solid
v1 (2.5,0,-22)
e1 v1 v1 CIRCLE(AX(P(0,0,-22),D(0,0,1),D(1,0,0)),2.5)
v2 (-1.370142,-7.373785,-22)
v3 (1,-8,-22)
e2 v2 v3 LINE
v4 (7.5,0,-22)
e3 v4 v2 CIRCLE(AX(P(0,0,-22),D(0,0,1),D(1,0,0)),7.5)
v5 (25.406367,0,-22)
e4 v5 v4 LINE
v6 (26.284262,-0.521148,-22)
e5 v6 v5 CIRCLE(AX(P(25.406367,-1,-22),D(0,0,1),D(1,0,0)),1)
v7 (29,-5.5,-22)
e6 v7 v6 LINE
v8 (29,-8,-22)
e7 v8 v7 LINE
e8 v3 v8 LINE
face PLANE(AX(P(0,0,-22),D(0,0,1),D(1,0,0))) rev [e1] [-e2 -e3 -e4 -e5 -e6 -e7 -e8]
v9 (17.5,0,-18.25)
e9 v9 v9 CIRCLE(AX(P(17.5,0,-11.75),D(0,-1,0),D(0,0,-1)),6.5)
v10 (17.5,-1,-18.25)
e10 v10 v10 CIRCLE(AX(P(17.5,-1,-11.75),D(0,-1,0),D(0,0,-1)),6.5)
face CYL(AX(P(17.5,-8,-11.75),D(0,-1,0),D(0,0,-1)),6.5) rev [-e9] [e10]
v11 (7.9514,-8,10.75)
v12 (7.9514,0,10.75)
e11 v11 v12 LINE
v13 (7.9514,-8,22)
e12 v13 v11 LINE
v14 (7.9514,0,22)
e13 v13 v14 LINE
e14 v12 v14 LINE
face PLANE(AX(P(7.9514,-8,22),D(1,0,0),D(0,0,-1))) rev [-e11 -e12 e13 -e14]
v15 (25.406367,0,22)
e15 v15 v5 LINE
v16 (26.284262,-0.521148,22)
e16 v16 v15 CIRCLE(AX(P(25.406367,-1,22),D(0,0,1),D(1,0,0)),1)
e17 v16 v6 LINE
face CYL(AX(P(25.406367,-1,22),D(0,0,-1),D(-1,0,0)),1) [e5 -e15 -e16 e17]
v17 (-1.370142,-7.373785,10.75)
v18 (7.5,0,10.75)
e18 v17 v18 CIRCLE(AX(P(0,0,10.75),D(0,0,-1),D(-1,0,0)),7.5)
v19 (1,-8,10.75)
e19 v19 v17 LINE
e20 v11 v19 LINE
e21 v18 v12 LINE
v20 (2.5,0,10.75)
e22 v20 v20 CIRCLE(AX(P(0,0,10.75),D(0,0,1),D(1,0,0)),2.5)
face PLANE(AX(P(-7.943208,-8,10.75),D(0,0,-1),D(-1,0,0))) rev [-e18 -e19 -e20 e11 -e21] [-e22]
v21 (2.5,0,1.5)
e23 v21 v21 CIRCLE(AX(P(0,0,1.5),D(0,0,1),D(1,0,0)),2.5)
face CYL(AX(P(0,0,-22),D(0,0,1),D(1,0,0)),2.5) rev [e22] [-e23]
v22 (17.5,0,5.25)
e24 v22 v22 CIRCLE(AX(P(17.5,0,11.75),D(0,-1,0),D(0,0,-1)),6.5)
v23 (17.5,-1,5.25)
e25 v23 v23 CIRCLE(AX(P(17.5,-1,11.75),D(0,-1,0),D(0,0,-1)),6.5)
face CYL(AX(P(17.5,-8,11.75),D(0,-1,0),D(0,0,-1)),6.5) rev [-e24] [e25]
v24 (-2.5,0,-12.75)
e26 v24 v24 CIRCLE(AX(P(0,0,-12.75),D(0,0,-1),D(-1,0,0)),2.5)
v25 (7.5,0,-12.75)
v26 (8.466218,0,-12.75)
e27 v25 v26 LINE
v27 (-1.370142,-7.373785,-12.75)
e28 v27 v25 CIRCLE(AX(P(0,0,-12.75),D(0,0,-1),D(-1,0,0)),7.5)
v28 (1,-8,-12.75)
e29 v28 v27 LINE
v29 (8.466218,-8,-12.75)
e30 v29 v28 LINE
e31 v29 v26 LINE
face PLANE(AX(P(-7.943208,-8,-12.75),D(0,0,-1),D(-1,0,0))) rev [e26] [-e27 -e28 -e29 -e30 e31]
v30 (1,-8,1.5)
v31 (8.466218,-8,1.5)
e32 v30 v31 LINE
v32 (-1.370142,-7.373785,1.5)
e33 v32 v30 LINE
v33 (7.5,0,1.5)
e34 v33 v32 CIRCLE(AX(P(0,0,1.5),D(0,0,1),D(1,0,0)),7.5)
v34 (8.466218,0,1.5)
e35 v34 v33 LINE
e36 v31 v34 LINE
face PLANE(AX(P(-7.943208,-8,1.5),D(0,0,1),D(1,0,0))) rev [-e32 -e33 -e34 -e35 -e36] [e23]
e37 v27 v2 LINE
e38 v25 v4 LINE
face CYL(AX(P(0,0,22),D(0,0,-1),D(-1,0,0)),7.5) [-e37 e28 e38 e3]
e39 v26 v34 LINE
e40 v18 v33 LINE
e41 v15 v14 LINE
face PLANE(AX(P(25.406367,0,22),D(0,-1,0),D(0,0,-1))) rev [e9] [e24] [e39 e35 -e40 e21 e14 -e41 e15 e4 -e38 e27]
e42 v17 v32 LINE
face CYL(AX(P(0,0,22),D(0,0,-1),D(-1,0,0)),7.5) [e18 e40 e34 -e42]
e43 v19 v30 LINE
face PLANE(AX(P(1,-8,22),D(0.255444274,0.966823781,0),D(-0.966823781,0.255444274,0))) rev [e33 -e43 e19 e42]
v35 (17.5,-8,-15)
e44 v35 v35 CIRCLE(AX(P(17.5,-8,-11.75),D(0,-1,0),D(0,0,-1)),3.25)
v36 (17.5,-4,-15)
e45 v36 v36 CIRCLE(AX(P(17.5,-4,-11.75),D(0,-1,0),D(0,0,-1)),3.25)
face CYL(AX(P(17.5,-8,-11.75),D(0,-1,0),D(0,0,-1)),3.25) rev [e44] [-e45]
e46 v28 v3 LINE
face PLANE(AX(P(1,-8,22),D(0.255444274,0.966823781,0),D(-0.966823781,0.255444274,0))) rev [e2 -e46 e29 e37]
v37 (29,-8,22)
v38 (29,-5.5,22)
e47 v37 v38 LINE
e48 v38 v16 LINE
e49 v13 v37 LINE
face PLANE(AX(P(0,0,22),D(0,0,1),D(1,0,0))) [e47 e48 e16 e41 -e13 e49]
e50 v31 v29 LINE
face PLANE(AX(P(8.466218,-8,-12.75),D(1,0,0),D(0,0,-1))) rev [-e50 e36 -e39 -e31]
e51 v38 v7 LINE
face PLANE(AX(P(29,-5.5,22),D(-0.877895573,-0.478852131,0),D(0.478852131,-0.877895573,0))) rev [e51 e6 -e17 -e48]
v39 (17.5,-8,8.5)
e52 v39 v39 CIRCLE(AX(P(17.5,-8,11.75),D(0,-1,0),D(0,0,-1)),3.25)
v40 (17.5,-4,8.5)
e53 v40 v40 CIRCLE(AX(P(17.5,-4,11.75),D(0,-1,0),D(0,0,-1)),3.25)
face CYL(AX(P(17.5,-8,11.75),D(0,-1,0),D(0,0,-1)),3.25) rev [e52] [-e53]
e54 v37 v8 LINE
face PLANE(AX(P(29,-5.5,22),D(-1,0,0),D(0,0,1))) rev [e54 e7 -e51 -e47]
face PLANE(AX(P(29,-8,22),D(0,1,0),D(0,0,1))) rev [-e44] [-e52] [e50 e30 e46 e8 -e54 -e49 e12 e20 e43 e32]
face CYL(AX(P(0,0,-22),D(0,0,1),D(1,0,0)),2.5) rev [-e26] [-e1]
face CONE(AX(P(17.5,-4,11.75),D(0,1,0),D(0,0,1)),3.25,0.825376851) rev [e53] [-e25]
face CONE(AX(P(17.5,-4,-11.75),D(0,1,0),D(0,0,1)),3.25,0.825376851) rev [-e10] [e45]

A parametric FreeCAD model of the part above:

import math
import FreeCAD as App
import Part
import Sketcher
from FreeCAD import Vector

doc = App.newDocument("Part")
body = doc.addObject("PartDesign::Body", "Body")

# Sketch on XY plane
sketch1 = doc.addObject("Sketcher::SketchObject", "Sketch")
body.addObject(sketch1)
sketch1.AttachmentSupport = (doc.XY_Plane, [""])
sketch1.MapMode = "FlatFace"
sketch1.addGeometry([
    Part.LineSegment(Vector(29, -8, 0), Vector(29, -5.5, 0)),  # 0
    Part.LineSegment(Vector(29, -5.5, 0), Vector(26.3, -0.5, 0)),  # 1
    Part.ArcOfCircle(Part.Circle(Vector(25.4, -1, 0), Vector(0, 0, 1), 1), math.radians(29), math.radians(90)),  # 2
    Part.LineSegment(Vector(25.4, 0, 0), Vector(7.5, 0, 0)),  # 3
    Part.ArcOfCircle(Part.Circle(Vector(0, 0, 0), Vector(0, 0, 1), 7.5), math.radians(0), math.radians(259)),  # 4
    Part.LineSegment(Vector(-1.4, -7.4, 0), Vector(1, -8, 0)),  # 5
    Part.LineSegment(Vector(1, -8, 0), Vector(29, -8, 0)),  # 6
], False)
sketch1.addConstraint([
    Sketcher.Constraint("Coincident", 0, 2, 1, 1),
    Sketcher.Constraint("Tangent", 1, 2, 2, 1),
    Sketcher.Constraint("Tangent", 2, 2, 3, 1),
    Sketcher.Constraint("Coincident", 3, 2, 4, 1),
    Sketcher.Constraint("Coincident", 4, 2, 5, 1),
    Sketcher.Constraint("Coincident", 5, 2, 6, 1),
    Sketcher.Constraint("Coincident", 6, 2, 0, 1),
    Sketcher.Constraint("Vertical", 0),
    Sketcher.Constraint("Horizontal", 3),
    Sketcher.Constraint("Horizontal", 6),
    Sketcher.Constraint("Coincident", 4, 3, -1, 1),
    Sketcher.Constraint("PointOnObject", 2, 2, -1),
    Sketcher.Constraint("Radius", 2, 1.0),
    Sketcher.Constraint("Radius", 4, 7.5),
    Sketcher.Constraint("DistanceX", 6, 1, 6, 2, 28.0),
    Sketcher.Constraint("DistanceY", 0, 1, 0, 2, 2.5),
    Sketcher.Constraint("DistanceX", -1, 1, 0, 2, 29.0),
    Sketcher.Constraint("DistanceY", 5, 2, -1, 1, 8.0),
    Sketcher.Constraint("Distance", 1, 5.671349),
    Sketcher.Constraint("DistanceX", 4, 2, -1, 1, 1.370142),
])
pad1 = doc.addObject("PartDesign::Pad", "Pad")
body.addObject(pad1)
pad1.Profile = sketch1
pad1.Length = 44
pad1.Midplane = True

# Sketch on XY plane
sketch2 = doc.addObject("Sketcher::SketchObject", "Sketch001")
body.addObject(sketch2)
sketch2.AttachmentSupport = (doc.XY_Plane, [""])
sketch2.MapMode = "FlatFace"
sketch2.AttachmentOffset = App.Placement(Vector(0, 0, 11.75), App.Rotation())
sketch2.addGeometry([
    Part.LineSegment(Vector(24, 0, 0), Vector(17.5, 0, 0)),  # 0
    Part.LineSegment(Vector(17.5, 0, 0), Vector(17.5, -8, 0)),  # 1
    Part.LineSegment(Vector(17.5, -8, 0), Vector(20.8, -8, 0)),  # 2
    Part.LineSegment(Vector(20.8, -8, 0), Vector(20.8, -4, 0)),  # 3
    Part.LineSegment(Vector(20.8, -4, 0), Vector(24, -1, 0)),  # 4
    Part.LineSegment(Vector(24, -1, 0), Vector(24, 0, 0)),  # 5
], False)
sketch2.addGeometry(Part.LineSegment(Vector(17.5, -8, 0), Vector(17.5, 0, 0)), True)  # axis
sketch2.addConstraint([
    Sketcher.Constraint("Coincident", 0, 2, 1, 1),
    Sketcher.Constraint("Coincident", 1, 2, 2, 1),
    Sketcher.Constraint("Coincident", 2, 2, 3, 1),
    Sketcher.Constraint("Coincident", 3, 2, 4, 1),
    Sketcher.Constraint("Coincident", 4, 2, 5, 1),
    Sketcher.Constraint("Coincident", 5, 2, 0, 1),
    Sketcher.Constraint("Horizontal", 0),
    Sketcher.Constraint("Vertical", 1),
    Sketcher.Constraint("Horizontal", 2),
    Sketcher.Constraint("Vertical", 3),
    Sketcher.Constraint("Vertical", 5),
    Sketcher.Constraint("Vertical", 6),
    Sketcher.Constraint("Coincident", 6, 1, 1, 2),
    Sketcher.Constraint("PointOnObject", 0, 2, -1),
    Sketcher.Constraint("PointOnObject", 6, 2, -1),
    Sketcher.Constraint("DistanceY", 1, 2, 1, 1, 8.0),
    Sketcher.Constraint("DistanceY", 3, 1, 3, 2, 4.0),
    Sketcher.Constraint("DistanceY", 5, 1, 5, 2, 1.0),
    Sketcher.Constraint("DistanceX", 0, 2, 0, 1, 6.5),
    Sketcher.Constraint("DistanceX", -1, 1, 4, 2, 24.0),
    Sketcher.Constraint("DistanceX", 2, 1, 2, 2, 3.25),
])
groove = doc.addObject("PartDesign::Groove", "Groove")
body.addObject(groove)
groove.Profile = sketch2
groove.ReferenceAxis = (sketch2, ["Axis0"])
groove.Angle = 360
doc.recompute()

linearpattern = doc.addObject("PartDesign::LinearPattern", "LinearPattern")
body.addObject(linearpattern)
linearpattern.Originals = [groove]
linearpattern.Direction = (doc.Z_Axis, [""])
linearpattern.Mode = "offset"
linearpattern.Offset = 23.5
linearpattern.Occurrences = 2
linearpattern.Reversed = True
body.Tip = linearpattern

# Sketch on XZ plane
sketch3 = doc.addObject("Sketcher::SketchObject", "Sketch002")
body.addObject(sketch3)
sketch3.AttachmentSupport = (doc.XZ_Plane, [""])
sketch3.MapMode = "FlatFace"
sketch3.addGeometry([
    Part.LineSegment(Vector(-8, 11, 0), Vector(-8, 22, 0)),  # 0
    Part.LineSegment(Vector(-8, 22, 0), Vector(8, 22, 0)),  # 1
    Part.LineSegment(Vector(8, 22, 0), Vector(8, 11, 0)),  # 2
    Part.LineSegment(Vector(8, 11, 0), Vector(-8, 11, 0)),  # 3
    Part.LineSegment(Vector(-8, -13, 0), Vector(-8, 2, 0)),  # 4
    Part.LineSegment(Vector(-8, 2, 0), Vector(8, 2, 0)),  # 5
    Part.LineSegment(Vector(8, 2, 0), Vector(8, -13, 0)),  # 6
    Part.LineSegment(Vector(8, -13, 0), Vector(-8, -13, 0)),  # 7
], False)
sketch3.addConstraint([
    Sketcher.Constraint("Coincident", 0, 2, 1, 1),
    Sketcher.Constraint("Coincident", 1, 2, 2, 1),
    Sketcher.Constraint("Coincident", 2, 2, 3, 1),
    Sketcher.Constraint("Coincident", 3, 2, 0, 1),
    Sketcher.Constraint("Coincident", 4, 2, 5, 1),
    Sketcher.Constraint("Coincident", 5, 2, 6, 1),
    Sketcher.Constraint("Coincident", 6, 2, 7, 1),
    Sketcher.Constraint("Coincident", 7, 2, 4, 1),
    Sketcher.Constraint("Vertical", 0),
    Sketcher.Constraint("Horizontal", 1),
    Sketcher.Constraint("Vertical", 2),
    Sketcher.Constraint("Horizontal", 3),
    Sketcher.Constraint("Vertical", 4),
    Sketcher.Constraint("Horizontal", 5),
    Sketcher.Constraint("Vertical", 6),
    Sketcher.Constraint("Horizontal", 7),
    Sketcher.Constraint("Vertical", 3, 2, 4, 2),
    Sketcher.Constraint("DistanceY", -1, 1, 0, 2, 22.0),
    Sketcher.Constraint("DistanceY", 0, 1, 0, 2, 11.25),
    Sketcher.Constraint("DistanceY", 4, 1, 4, 2, 14.25),
    Sketcher.Constraint("DistanceY", -1, 1, 4, 2, 1.5),
    Sketcher.Constraint("DistanceX", -1, 1, 1, 2, 7.9514),
    Sketcher.Constraint("DistanceX", 1, 1, 1, 2, 15.894608),
    Sketcher.Constraint("DistanceX", 5, 1, 5, 2, 16.409425),
])
pocket1 = doc.addObject("PartDesign::Pocket", "Pocket")
body.addObject(pocket1)
pocket1.Profile = sketch3
pocket1.Type = "ThroughAll"
pocket1.Midplane = True

# Sketch on XY plane
sketch4 = doc.addObject("Sketcher::SketchObject", "Sketch003")
body.addObject(sketch4)
sketch4.AttachmentSupport = (doc.XY_Plane, [""])
sketch4.MapMode = "FlatFace"
sketch4.AttachmentOffset = App.Placement(Vector(0, 0, 10.75), App.Rotation())
sketch4.addGeometry(Part.Circle(Vector(0, 0, 0), Vector(0, 0, 1), 2.5), False)
sketch4.addConstraint([
    Sketcher.Constraint("Coincident", 0, 3, -1, 1),
    Sketcher.Constraint("Diameter", 0, 5.0),
])
pocket2 = doc.addObject("PartDesign::Pocket", "Pocket001")
body.addObject(pocket2)
pocket2.Profile = sketch4
pocket2.Type = "ThroughAll"

doc.recompute()
